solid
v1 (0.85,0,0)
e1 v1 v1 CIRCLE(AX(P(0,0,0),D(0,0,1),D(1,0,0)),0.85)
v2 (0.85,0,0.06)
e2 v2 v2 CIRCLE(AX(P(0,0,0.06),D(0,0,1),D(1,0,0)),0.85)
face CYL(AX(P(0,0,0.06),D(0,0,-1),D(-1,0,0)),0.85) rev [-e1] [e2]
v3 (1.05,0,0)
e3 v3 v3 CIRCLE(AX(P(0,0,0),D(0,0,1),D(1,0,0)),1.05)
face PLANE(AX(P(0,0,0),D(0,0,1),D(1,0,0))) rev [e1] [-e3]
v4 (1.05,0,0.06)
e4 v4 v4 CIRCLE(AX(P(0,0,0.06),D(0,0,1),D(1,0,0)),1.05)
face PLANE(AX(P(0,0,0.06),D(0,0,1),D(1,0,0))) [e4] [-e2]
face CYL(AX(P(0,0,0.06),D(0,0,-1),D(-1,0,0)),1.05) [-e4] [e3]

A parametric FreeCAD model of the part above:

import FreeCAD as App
import Part
import Sketcher

doc = App.newDocument("Part")
params = doc.addObject("Spreadsheet::Sheet", "Params")
for row, (alias, value) in enumerate([
    ("sketch1_diameter", "2.1 mm"),
    ("sketch1_diameter2", "1.7 mm"),
    ("pad1_length", "0.06 mm"),
], start=1):
    params.set(f"A{row}", alias)
    params.set(f"B{row}", "=" + value)
    params.setAlias(f"B{row}", alias)

body = doc.addObject("PartDesign::Body", "Body")

sketch1 = body.newObject("Sketcher::SketchObject", "Sketch")
sketch1.AttachmentSupport = (doc.getObject("XY_Plane"), [""])
sketch1.MapMode = "FlatFace"
sketch1.addGeometry(Part.Circle(App.Vector(0, 0, 0), App.Vector(0, 0, 1), 1.1), False)
sketch1.addGeometry(Part.Circle(App.Vector(0, 0, 0), App.Vector(0, 0, 1), 0.8), False)
sketch1.addConstraint(Sketcher.Constraint("Coincident", 0, 3, -1, 1))
sketch1.addConstraint(Sketcher.Constraint("Coincident", 1, 3, -1, 1))
sketch1.addConstraint(Sketcher.Constraint("Diameter", 0, 2.1))
sketch1.addConstraint(Sketcher.Constraint("Diameter", 1, 1.7))
sketch1.setExpression("Constraints[2]", "Params.sketch1_diameter")
sketch1.setExpression("Constraints[3]", "Params.sketch1_diameter2")
pad1 = body.newObject("PartDesign::Pad", "Pad")
pad1.Profile = sketch1
pad1.setExpression("Length", "Params.pad1_length")

doc.recompute()
